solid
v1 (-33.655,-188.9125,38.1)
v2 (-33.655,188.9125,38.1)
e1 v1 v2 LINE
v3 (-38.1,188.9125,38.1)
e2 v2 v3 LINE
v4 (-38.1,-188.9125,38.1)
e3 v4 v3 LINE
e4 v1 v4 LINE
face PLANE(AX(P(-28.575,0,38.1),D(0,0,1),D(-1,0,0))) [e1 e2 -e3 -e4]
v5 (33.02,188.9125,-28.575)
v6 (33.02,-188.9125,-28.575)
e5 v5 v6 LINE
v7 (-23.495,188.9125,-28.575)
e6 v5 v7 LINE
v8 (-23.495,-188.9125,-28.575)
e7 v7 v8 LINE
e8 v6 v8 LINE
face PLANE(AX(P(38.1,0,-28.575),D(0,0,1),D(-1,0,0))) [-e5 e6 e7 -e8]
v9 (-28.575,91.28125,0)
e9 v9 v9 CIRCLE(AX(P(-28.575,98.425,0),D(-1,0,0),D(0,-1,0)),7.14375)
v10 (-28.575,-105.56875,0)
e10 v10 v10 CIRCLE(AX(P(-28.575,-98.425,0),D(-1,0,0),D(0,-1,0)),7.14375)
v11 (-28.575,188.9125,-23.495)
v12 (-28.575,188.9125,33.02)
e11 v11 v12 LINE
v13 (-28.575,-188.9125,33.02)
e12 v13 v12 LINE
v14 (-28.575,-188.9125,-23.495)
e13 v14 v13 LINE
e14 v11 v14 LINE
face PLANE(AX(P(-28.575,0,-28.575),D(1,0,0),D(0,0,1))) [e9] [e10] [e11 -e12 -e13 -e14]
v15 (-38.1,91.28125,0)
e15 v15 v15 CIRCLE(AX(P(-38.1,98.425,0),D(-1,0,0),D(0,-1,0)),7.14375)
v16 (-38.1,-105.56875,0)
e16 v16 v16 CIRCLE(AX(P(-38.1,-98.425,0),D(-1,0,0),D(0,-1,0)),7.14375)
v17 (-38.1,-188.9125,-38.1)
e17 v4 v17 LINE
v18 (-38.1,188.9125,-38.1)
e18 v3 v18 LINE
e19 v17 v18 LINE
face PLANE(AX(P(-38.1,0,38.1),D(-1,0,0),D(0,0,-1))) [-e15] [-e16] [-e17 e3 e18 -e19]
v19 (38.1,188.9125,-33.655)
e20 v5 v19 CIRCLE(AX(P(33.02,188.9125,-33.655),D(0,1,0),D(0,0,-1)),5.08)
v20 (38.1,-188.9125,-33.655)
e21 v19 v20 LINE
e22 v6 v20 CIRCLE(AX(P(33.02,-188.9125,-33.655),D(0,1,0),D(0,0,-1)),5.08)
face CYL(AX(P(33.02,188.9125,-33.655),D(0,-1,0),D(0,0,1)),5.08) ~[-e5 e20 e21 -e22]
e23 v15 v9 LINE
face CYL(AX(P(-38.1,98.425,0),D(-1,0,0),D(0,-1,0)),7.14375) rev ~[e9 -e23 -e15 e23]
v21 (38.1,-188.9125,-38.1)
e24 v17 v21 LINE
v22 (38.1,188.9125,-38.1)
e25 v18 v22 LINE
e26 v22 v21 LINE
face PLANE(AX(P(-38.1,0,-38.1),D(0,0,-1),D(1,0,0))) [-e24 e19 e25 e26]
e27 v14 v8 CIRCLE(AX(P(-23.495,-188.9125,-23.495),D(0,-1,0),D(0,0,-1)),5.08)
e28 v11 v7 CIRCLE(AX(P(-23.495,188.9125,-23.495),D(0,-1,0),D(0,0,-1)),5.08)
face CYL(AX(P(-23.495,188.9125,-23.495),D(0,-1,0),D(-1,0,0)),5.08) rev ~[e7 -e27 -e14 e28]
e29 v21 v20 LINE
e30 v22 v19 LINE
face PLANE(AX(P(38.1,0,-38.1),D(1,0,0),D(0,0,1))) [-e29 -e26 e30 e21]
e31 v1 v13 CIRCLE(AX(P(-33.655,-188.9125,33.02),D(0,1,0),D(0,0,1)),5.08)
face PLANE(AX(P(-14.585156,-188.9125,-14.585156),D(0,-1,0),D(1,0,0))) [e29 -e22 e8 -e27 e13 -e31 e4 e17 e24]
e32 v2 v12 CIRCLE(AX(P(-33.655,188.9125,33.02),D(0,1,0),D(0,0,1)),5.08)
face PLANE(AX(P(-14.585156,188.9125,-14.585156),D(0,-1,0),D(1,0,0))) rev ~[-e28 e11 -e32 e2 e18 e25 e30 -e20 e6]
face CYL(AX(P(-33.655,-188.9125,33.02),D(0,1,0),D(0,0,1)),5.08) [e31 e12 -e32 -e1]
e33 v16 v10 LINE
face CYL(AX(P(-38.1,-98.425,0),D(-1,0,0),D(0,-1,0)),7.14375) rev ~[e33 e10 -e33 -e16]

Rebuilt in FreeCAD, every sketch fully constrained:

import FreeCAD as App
import Part
import Sketcher

V = App.Vector
Q = App.Units.Quantity


def edges_at(feature, points):
    """Names of the edges that pass closest to the given points."""
    edges = feature.Shape.Edges
    near = lambda p: min(range(len(edges)), key=lambda i: edges[i].distToShape(Part.Vertex(*p))[0])
    return sorted({f"Edge{near(p) + 1}" for p in points})

doc = App.newDocument("Part")
body = doc.addObject("PartDesign::Body", "Body")

# Sketch on XZ plane
sketch1 = body.newObject("Sketcher::SketchObject", "Sketch")
sketch1.AttachmentSupport = (doc.getObject("XZ_Plane"), [""])
sketch1.MapMode = "FlatFace"
sketch1.addGeometry(Part.LineSegment(V(-38.1, -38.1, 0), V(38.1, -38.1, 0)), False)
sketch1.addGeometry(Part.LineSegment(V(38.1, -38.1, 0), V(38.1, -28.575, 0)), False)
sketch1.addGeometry(Part.LineSegment(V(38.1, -28.575, 0), V(-28.575, -28.575, 0)), False)
sketch1.addGeometry(Part.LineSegment(V(-28.575, -28.575, 0), V(-28.575, 38.1, 0)), False)
sketch1.addGeometry(Part.LineSegment(V(-28.575, 38.1, 0), V(-38.1, 38.1, 0)), False)
sketch1.addGeometry(Part.LineSegment(V(-38.1, 38.1, 0), V(-38.1, -38.1, 0)), False)
sketch1.addConstraint(Sketcher.Constraint("Coincident", 0, 2, 1, 1))
sketch1.addConstraint(Sketcher.Constraint("Coincident", 1, 2, 2, 1))
sketch1.addConstraint(Sketcher.Constraint("Coincident", 2, 2, 3, 1))
sketch1.addConstraint(Sketcher.Constraint("Coincident", 3, 2, 4, 1))
sketch1.addConstraint(Sketcher.Constraint("Coincident", 4, 2, 5, 1))
sketch1.addConstraint(Sketcher.Constraint("Coincident", 5, 2, 0, 1))
sketch1.addConstraint(Sketcher.Constraint("Horizontal", 0))
sketch1.addConstraint(Sketcher.Constraint("Vertical", 1))
sketch1.addConstraint(Sketcher.Constraint("Horizontal", 2))
sketch1.addConstraint(Sketcher.Constraint("Vertical", 3))
sketch1.addConstraint(Sketcher.Constraint("Horizontal", 4))
sketch1.addConstraint(Sketcher.Constraint("Vertical", 5))
sketch1.addConstraint(Sketcher.Constraint("Symmetric", 0, 2, 4, 2, -1, 1))
sketch1.addConstraint(Sketcher.Constraint("Equal", 4, 1))
sketch1.addConstraint(Sketcher.Constraint("Equal", 2, 3))
sketch1.addConstraint(Sketcher.Constraint("DistanceX", 0, 1, 0, 2, Q("3 in")))
sketch1.addConstraint(Sketcher.Constraint("DistanceX", 2, 2, 2, 1, Q("2.625 in")))
pad1 = body.newObject("PartDesign::Pad", "Pad")
pad1.Profile = sketch1
pad1.Length = Q("14.875 in")
pad1.Midplane = True
doc.recompute()

fillet = body.newObject("PartDesign::Fillet", "Fillet")
fillet.Base = (pad1, edges_at(pad1, [(-28.575, 0, 38.1), (-28.575, 0, -28.575), (38.1, 0, -28.575)]))
fillet.Radius = Q("0.2 in")

# Sketch on YZ plane
sketch2 = body.newObject("Sketcher::SketchObject", "Sketch001")
sketch2.AttachmentSupport = (doc.getObject("YZ_Plane"), [""])
sketch2.MapMode = "FlatFace"
sketch2.AttachmentOffset = App.Placement(V(0, 0, -1.5 * 25.4), App.Rotation())
sketch2.addGeometry(Part.Circle(V(98.425, 0, 0), V(0, 0, 1), 7.14375), False)
sketch2.addGeometry(Part.Circle(V(-98.425, 0, 0), V(0, 0, 1), 7.14375), False)
sketch2.addConstraint(Sketcher.Constraint("Equal", 0, 1))
sketch2.addConstraint(Sketcher.Constraint("Symmetric", 0, 3, 1, 3, -1, 1))
sketch2.addConstraint(Sketcher.Constraint("PointOnObject", 0, 3, -1))
sketch2.addConstraint(Sketcher.Constraint("Diameter", 0, Q("0.5625 in")))
sketch2.addConstraint(Sketcher.Constraint("DistanceX", 1, 3, 0, 3, Q("7.75 in")))
pocket1 = body.newObject("PartDesign::Pocket", "Pocket")
pocket1.Profile = sketch2
pocket1.Length = Q("1 in")
pocket1.Reversed = True

doc.recompute()
